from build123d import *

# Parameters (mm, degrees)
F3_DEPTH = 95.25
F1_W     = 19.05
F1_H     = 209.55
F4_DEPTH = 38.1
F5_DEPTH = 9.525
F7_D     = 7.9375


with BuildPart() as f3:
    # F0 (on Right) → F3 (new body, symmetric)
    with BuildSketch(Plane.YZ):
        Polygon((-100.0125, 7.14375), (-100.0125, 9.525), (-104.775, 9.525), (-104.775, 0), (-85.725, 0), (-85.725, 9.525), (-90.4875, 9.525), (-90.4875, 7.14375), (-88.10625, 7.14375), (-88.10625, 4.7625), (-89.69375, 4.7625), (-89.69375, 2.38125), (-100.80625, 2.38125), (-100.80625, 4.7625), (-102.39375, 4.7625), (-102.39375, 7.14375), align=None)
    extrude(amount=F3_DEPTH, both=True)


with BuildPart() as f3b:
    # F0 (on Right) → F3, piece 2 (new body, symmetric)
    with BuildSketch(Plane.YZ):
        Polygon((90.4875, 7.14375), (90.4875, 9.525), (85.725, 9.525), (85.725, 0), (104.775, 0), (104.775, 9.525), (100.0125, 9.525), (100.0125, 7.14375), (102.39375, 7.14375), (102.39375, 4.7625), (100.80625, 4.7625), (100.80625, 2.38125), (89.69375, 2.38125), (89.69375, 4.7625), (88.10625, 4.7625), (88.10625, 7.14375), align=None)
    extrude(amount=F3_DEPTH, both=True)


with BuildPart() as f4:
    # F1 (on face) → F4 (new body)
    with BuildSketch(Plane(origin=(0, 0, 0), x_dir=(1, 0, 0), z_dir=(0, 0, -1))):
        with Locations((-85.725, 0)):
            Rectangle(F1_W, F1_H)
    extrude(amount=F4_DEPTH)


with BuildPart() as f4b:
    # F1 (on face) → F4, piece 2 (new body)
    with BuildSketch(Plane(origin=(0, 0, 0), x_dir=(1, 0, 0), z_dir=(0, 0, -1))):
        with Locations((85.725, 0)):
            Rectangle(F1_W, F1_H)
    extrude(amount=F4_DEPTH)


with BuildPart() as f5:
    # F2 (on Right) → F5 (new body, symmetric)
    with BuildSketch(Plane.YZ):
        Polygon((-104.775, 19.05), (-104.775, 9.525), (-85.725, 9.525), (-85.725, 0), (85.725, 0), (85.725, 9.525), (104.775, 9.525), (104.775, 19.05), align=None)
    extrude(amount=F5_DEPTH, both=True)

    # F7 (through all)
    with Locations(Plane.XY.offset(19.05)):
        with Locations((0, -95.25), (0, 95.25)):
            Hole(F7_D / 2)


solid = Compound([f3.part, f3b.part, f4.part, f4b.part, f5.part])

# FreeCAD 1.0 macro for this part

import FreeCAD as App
import Part
import Sketcher
from FreeCAD import Vector
Q = App.Units.Quantity

doc = App.newDocument("Part")
params = doc.addObject("Spreadsheet::Sheet", "Params")
for row, (alias, value) in enumerate([
    ("sketch1_width", "0.75 in"),
    ("sketch1_width2", "0.1875 in"),
    ("sketch1_width3", "0.09375 in"),
    ("sketch1_width4", "0.0625 in"),
    ("sketch1_height", "0.375 in"),
    ("pad1_length", "7.5 in"),
    ("sketch2_width", "0.75 in"),
    ("sketch2_width2", "0.1875 in"),
    ("sketch2_width3", "0.09375 in"),
    ("sketch2_width4", "0.0625 in"),
    ("sketch2_height", "0.375 in"),
    ("pad2_length", "7.5 in"),
    ("sketch3_width", "0.75 in"),
    ("sketch3_height", "8.25 in"),
    ("pad3_length", "1.5 in"),
    ("sketch4_width", "0.75 in"),
    ("sketch4_height", "8.25 in"),
    ("pad4_length", "1.5 in"),
    ("sketch5_width", "0.75 in"),
    ("sketch5_width2", "6.75 in"),
    ("sketch5_height", "0.375 in"),
    ("pad5_length", "0.75 in"),
    ("sketch6_diameter", "0.3125 in"),
    ("hole_diameter", "0.3125 in"),
], start=1):
    params.set(f"A{row}", alias)
    params.set(f"B{row}", "=" + value)
    params.setAlias(f"B{row}", alias)

body = doc.addObject("PartDesign::Body", "Body")

sketch1 = doc.addObject("Sketcher::SketchObject", "Sketch")
body.addObject(sketch1)
sketch1.AttachmentSupport = (doc.YZ_Plane, [""])
sketch1.MapMode = "FlatFace"
sketch1.addGeometry([
    Part.LineSegment(Vector(-100, 7.1, 0), Vector(-100, 9.5, 0)),
    Part.LineSegment(Vector(-100, 9.5, 0), Vector(-104.8, 9.5, 0)),
    Part.LineSegment(Vector(-104.8, 9.5, 0), Vector(-104.8, 0, 0)),
    Part.LineSegment(Vector(-104.8, 0, 0), Vector(-85.7, 0, 0)),
    Part.LineSegment(Vector(-85.7, 0, 0), Vector(-85.7, 9.5, 0)),
    Part.LineSegment(Vector(-85.7, 9.5, 0), Vector(-90.5, 9.5, 0)),
    Part.LineSegment(Vector(-90.5, 9.5, 0), Vector(-90.5, 7.1, 0)),
    Part.LineSegment(Vector(-90.5, 7.1, 0), Vector(-88.1, 7.1, 0)),
    Part.LineSegment(Vector(-88.1, 7.1, 0), Vector(-88.1, 4.8, 0)),
    Part.LineSegment(Vector(-88.1, 4.8, 0), Vector(-89.7, 4.8, 0)),
    Part.LineSegment(Vector(-89.7, 4.8, 0), Vector(-89.7, 2.4, 0)),
    Part.LineSegment(Vector(-89.7, 2.4, 0), Vector(-100.8, 2.4, 0)),
    Part.LineSegment(Vector(-100.8, 2.4, 0), Vector(-100.8, 4.8, 0)),
    Part.LineSegment(Vector(-100.8, 4.8, 0), Vector(-102.4, 4.8, 0)),
    Part.LineSegment(Vector(-102.4, 4.8, 0), Vector(-102.4, 7.1, 0)),
    Part.LineSegment(Vector(-102.4, 7.1, 0), Vector(-100, 7.1, 0)),
], False)
sketch1.addConstraint([
    Sketcher.Constraint("Coincident", 0, 2, 1, 1),
    Sketcher.Constraint("Coincident", 1, 2, 2, 1),
    Sketcher.Constraint("Coincident", 2, 2, 3, 1),
    Sketcher.Constraint("Coincident", 3, 2, 4, 1),
    Sketcher.Constraint("Coincident", 4, 2, 5, 1),
    Sketcher.Constraint("Coincident", 5, 2, 6, 1),
    Sketcher.Constraint("Coincident", 6, 2, 7, 1),
    Sketcher.Constraint("Coincident", 7, 2, 8, 1),
    Sketcher.Constraint("Coincident", 8, 2, 9, 1),
    Sketcher.Constraint("Coincident", 9, 2, 10, 1),
    Sketcher.Constraint("Coincident", 10, 2, 11, 1),
    Sketcher.Constraint("Coincident", 11, 2, 12, 1),
    Sketcher.Constraint("Coincident", 12, 2, 13, 1),
    Sketcher.Constraint("Coincident", 13, 2, 14, 1),
    Sketcher.Constraint("Coincident", 14, 2, 15, 1),
    Sketcher.Constraint("Coincident", 15, 2, 0, 1),
    Sketcher.Constraint("Vertical", 0),
    Sketcher.Constraint("Horizontal", 1),
    Sketcher.Constraint("Vertical", 2),
    Sketcher.Constraint("Horizontal", 3),
    Sketcher.Constraint("Vertical", 4),
    Sketcher.Constraint("Horizontal", 5),
    Sketcher.Constraint("Vertical", 6),
    Sketcher.Constraint("Horizontal", 7),
    Sketcher.Constraint("Vertical", 8),
    Sketcher.Constraint("Horizontal", 9),
    Sketcher.Constraint("Vertical", 10),
    Sketcher.Constraint("Horizontal", 11),
    Sketcher.Constraint("Vertical", 12),
    Sketcher.Constraint("Horizontal", 13),
    Sketcher.Constraint("Vertical", 14),
    Sketcher.Constraint("Horizontal", 15),
    Sketcher.Constraint("PointOnObject", 2, 2, -1),
    Sketcher.Constraint("Horizontal", 1, 2, 4, 2),
    Sketcher.Constraint("Horizontal", 9, 2, 12, 2),
    Sketcher.Constraint("Horizontal", 7, 2, 14, 2),
    Sketcher.Constraint("Equal", 1, 5),
    Sketcher.Constraint("Equal", 9, 13),
    Sketcher.Constraint("Equal", 7, 15),
    Sketcher.Constraint("Equal", 15, 0),
    Sketcher.Constraint("Equal", 6, 8),
    Sketcher.Constraint("Equal", 8, 10),
    Sketcher.Constraint("DistanceX", 3, 1, 3, 2, Q("0.75 in")),
    Sketcher.Constraint("DistanceX", 1, 2, 1, 1, Q("0.1875 in")),
    Sketcher.Constraint("DistanceX", 7, 1, 7, 2, Q("0.09375 in")),
    Sketcher.Constraint("DistanceX", 9, 2, 9, 1, Q("0.0625 in")),
    Sketcher.Constraint("DistanceY", 2, 2, 2, 1, Q("0.375 in")),
    Sketcher.Constraint("DistanceX", 0, 2, -1, 1, Q("3.9375 in")),
])
sketch1.setExpression("Constraints[42]", "Params.sketch1_width")
sketch1.setExpression("Constraints[43]", "Params.sketch1_width2")
sketch1.setExpression("Constraints[44]", "Params.sketch1_width3")
sketch1.setExpression("Constraints[45]", "Params.sketch1_width4")
sketch1.setExpression("Constraints[46]", "Params.sketch1_height")
pad1 = doc.addObject("PartDesign::Pad", "Pad")
body.addObject(pad1)
pad1.Profile = sketch1
pad1.setExpression("Length", "Params.pad1_length")
pad1.Midplane = True
body2 = doc.addObject("PartDesign::Body", "Body001")

sketch2 = doc.addObject("Sketcher::SketchObject", "Sketch001")
body2.addObject(sketch2)
sketch2.AttachmentSupport = (doc.getObject("YZ_Plane001"), [""])
sketch2.MapMode = "FlatFace"
sketch2.addGeometry([
    Part.LineSegment(Vector(90.5, 7.1, 0), Vector(90.5, 9.5, 0)),
    Part.LineSegment(Vector(90.5, 9.5, 0), Vector(85.7, 9.5, 0)),
    Part.LineSegment(Vector(85.7, 9.5, 0), Vector(85.7, 0, 0)),
    Part.LineSegment(Vector(85.7, 0, 0), Vector(104.8, 0, 0)),
    Part.LineSegment(Vector(104.8, 0, 0), Vector(104.8, 9.5, 0)),
    Part.LineSegment(Vector(104.8, 9.5, 0), Vector(100, 9.5, 0)),
    Part.LineSegment(Vector(100, 9.5, 0), Vector(100, 7.1, 0)),
    Part.LineSegment(Vector(100, 7.1, 0), Vector(102.4, 7.1, 0)),
    Part.LineSegment(Vector(102.4, 7.1, 0), Vector(102.4, 4.8, 0)),
    Part.LineSegment(Vector(102.4, 4.8, 0), Vector(100.8, 4.8, 0)),
    Part.LineSegment(Vector(100.8, 4.8, 0), Vector(100.8, 2.4, 0)),
    Part.LineSegment(Vector(100.8, 2.4, 0), Vector(89.7, 2.4, 0)),
    Part.LineSegment(Vector(89.7, 2.4, 0), Vector(89.7, 4.8, 0)),
    Part.LineSegment(Vector(89.7, 4.8, 0), Vector(88.1, 4.8, 0)),
    Part.LineSegment(Vector(88.1, 4.8, 0), Vector(88.1, 7.1, 0)),
    Part.LineSegment(Vector(88.1, 7.1, 0), Vector(90.5, 7.1, 0)),
], False)
sketch2.addConstraint([
    Sketcher.Constraint("Coincident", 0, 2, 1, 1),
    Sketcher.Constraint("Coincident", 1, 2, 2, 1),
    Sketcher.Constraint("Coincident", 2, 2, 3, 1),
    Sketcher.Constraint("Coincident", 3, 2, 4, 1),
    Sketcher.Constraint("Coincident", 4, 2, 5, 1),
    Sketcher.Constraint("Coincident", 5, 2, 6, 1),
    Sketcher.Constraint("Coincident", 6, 2, 7, 1),
    Sketcher.Constraint("Coincident", 7, 2, 8, 1),
    Sketcher.Constraint("Coincident", 8, 2, 9, 1),
    Sketcher.Constraint("Coincident", 9, 2, 10, 1),
    Sketcher.Constraint("Coincident", 10, 2, 11, 1),
    Sketcher.Constraint("Coincident", 11, 2, 12, 1),
    Sketcher.Constraint("Coincident", 12, 2, 13, 1),
    Sketcher.Constraint("Coincident", 13, 2, 14, 1),
    Sketcher.Constraint("Coincident", 14, 2, 15, 1),
    Sketcher.Constraint("Coincident", 15, 2, 0, 1),
    Sketcher.Constraint("Vertical", 0),
    Sketcher.Constraint("Horizontal", 1),
    Sketcher.Constraint("Vertical", 2),
    Sketcher.Constraint("Horizontal", 3),
    Sketcher.Constraint("Vertical", 4),
    Sketcher.Constraint("Horizontal", 5),
    Sketcher.Constraint("Vertical", 6),
    Sketcher.Constraint("Horizontal", 7),
    Sketcher.Constraint("Vertical", 8),
    Sketcher.Constraint("Horizontal", 9),
    Sketcher.Constraint("Vertical", 10),
    Sketcher.Constraint("Horizontal", 11),
    Sketcher.Constraint("Vertical", 12),
    Sketcher.Constraint("Horizontal", 13),
    Sketcher.Constraint("Vertical", 14),
    Sketcher.Constraint("Horizontal", 15),
    Sketcher.Constraint("PointOnObject", 2, 2, -1),
    Sketcher.Constraint("Horizontal", 1, 2, 4, 2),
    Sketcher.Constraint("Horizontal", 9, 2, 12, 2),
    Sketcher.Constraint("Horizontal", 7, 2, 14, 2),
    Sketcher.Constraint("Equal", 1, 5),
    Sketcher.Constraint("Equal", 9, 13),
    Sketcher.Constraint("Equal", 7, 15),
    Sketcher.Constraint("Equal", 15, 0),
    Sketcher.Constraint("Equal", 6, 8),
    Sketcher.Constraint("Equal", 8, 10),
    Sketcher.Constraint("DistanceX", 3, 1, 3, 2, Q("0.75 in")),
    Sketcher.Constraint("DistanceX", 1, 2, 1, 1, Q("0.1875 in")),
    Sketcher.Constraint("DistanceX", 7, 1, 7, 2, Q("0.09375 in")),
    Sketcher.Constraint("DistanceX", 9, 2, 9, 1, Q("0.0625 in")),
    Sketcher.Constraint("DistanceY", 2, 2, 2, 1, Q("0.375 in")),
    Sketcher.Constraint("DistanceX", -1, 1, 0, 2, Q("3.5625 in")),
])
sketch2.setExpression("Constraints[42]", "Params.sketch2_width")
sketch2.setExpression("Constraints[43]", "Params.sketch2_width2")
sketch2.setExpression("Constraints[44]", "Params.sketch2_width3")
sketch2.setExpression("Constraints[45]", "Params.sketch2_width4")
sketch2.setExpression("Constraints[46]", "Params.sketch2_height")
pad2 = doc.addObject("PartDesign::Pad", "Pad001")
body2.addObject(pad2)
pad2.Profile = sketch2
pad2.setExpression("Length", "Params.pad2_length")
pad2.Midplane = True
body3 = doc.addObject("PartDesign::Body", "Body002")

sketch3 = doc.addObject("Sketcher::SketchObject", "Sketch002")
body3.addObject(sketch3)
sketch3.AttachmentSupport = (doc.getObject("XY_Plane002"), [""])
sketch3.MapMode = "FlatFace"
sketch3.addGeometry([
    Part.LineSegment(Vector(-95, -105, 0), Vector(-95, 105, 0)),
    Part.LineSegment(Vector(-95, 105, 0), Vector(-76, 105, 0)),
    Part.LineSegment(Vector(-76, 105, 0), Vector(-76, -105, 0)),
    Part.LineSegment(Vector(-76, -105, 0), Vector(-95, -105, 0)),
], False)
sketch3.addConstraint([
    Sketcher.Constraint("Coincident", 0, 2, 1, 1),
    Sketcher.Constraint("Coincident", 1, 2, 2, 1),
    Sketcher.Constraint("Coincident", 2, 2, 3, 1),
    Sketcher.Constraint("Coincident", 3, 2, 0, 1),
    Sketcher.Constraint("Vertical", 0),
    Sketcher.Constraint("Horizontal", 1),
    Sketcher.Constraint("Vertical", 2),
    Sketcher.Constraint("Horizontal", 3),
    Sketcher.Constraint("DistanceX", 1, 2, -1, 1, Q("3 in")),
    Sketcher.Constraint("DistanceX", 1, 1, 1, 2, Q("0.75 in")),
    Sketcher.Constraint("DistanceY", 0, 1, 0, 2, Q("8.25 in")),
    Sketcher.Constraint("DistanceY", -1, 1, 0, 2, Q("4.125 in")),
])
sketch3.setExpression("Constraints[9]", "Params.sketch3_width")
sketch3.setExpression("Constraints[10]", "Params.sketch3_height")
pad3 = doc.addObject("PartDesign::Pad", "Pad002")
body3.addObject(pad3)
pad3.Profile = sketch3
pad3.setExpression("Length", "Params.pad3_length")
pad3.Reversed = True
body4 = doc.addObject("PartDesign::Body", "Body003")

sketch4 = doc.addObject("Sketcher::SketchObject", "Sketch003")
body4.addObject(sketch4)
sketch4.AttachmentSupport = (doc.getObject("XY_Plane003"), [""])
sketch4.MapMode = "FlatFace"
sketch4.addGeometry([
    Part.LineSegment(Vector(76, -105, 0), Vector(76, 105, 0)),
    Part.LineSegment(Vector(76, 105, 0), Vector(95, 105, 0)),
    Part.LineSegment(Vector(95, 105, 0), Vector(95, -105, 0)),
    Part.LineSegment(Vector(95, -105, 0), Vector(76, -105, 0)),
], False)
sketch4.addConstraint([
    Sketcher.Constraint("Coincident", 0, 2, 1, 1),
    Sketcher.Constraint("Coincident", 1, 2, 2, 1),
    Sketcher.Constraint("Coincident", 2, 2, 3, 1),
    Sketcher.Constraint("Coincident", 3, 2, 0, 1),
    Sketcher.Constraint("Vertical", 0),
    Sketcher.Constraint("Horizontal", 1),
    Sketcher.Constraint("Vertical", 2),
    Sketcher.Constraint("Horizontal", 3),
    Sketcher.Constraint("DistanceX", -1, 1, 0, 2, Q("3 in")),
    Sketcher.Constraint("DistanceX", 1, 1, 1, 2, Q("0.75 in")),
    Sketcher.Constraint("DistanceY", 0, 1, 0, 2, Q("8.25 in")),
    Sketcher.Constraint("DistanceY", -1, 1, 0, 2, Q("4.125 in")),
])
sketch4.setExpression("Constraints[9]", "Params.sketch4_width")
sketch4.setExpression("Constraints[10]", "Params.sketch4_height")
pad4 = doc.addObject("PartDesign::Pad", "Pad003")
body4.addObject(pad4)
pad4.Profile = sketch4
pad4.setExpression("Length", "Params.pad4_length")
pad4.Reversed = True
body5 = doc.addObject("PartDesign::Body", "Body004")

sketch5 = doc.addObject("Sketcher::SketchObject", "Sketch004")
body5.addObject(sketch5)
sketch5.AttachmentSupport = (doc.getObject("YZ_Plane004"), [""])
sketch5.MapMode = "FlatFace"
sketch5.addGeometry([
    Part.LineSegment(Vector(-105, 19, 0), Vector(-105, 10, 0)),
    Part.LineSegment(Vector(-105, 10, 0), Vector(-86, 10, 0)),
    Part.LineSegment(Vector(-86, 10, 0), Vector(-86, 0, 0)),
    Part.LineSegment(Vector(-86, 0, 0), Vector(86, 0, 0)),
    Part.LineSegment(Vector(86, 0, 0), Vector(86, 10, 0)),
    Part.LineSegment(Vector(86, 10, 0), Vector(105, 10, 0)),
    Part.LineSegment(Vector(105, 10, 0), Vector(105, 19, 0)),
    Part.LineSegment(Vector(105, 19, 0), Vector(-105, 19, 0)),
], False)
sketch5.addConstraint([
    Sketcher.Constraint("Coincident", 0, 2, 1, 1),
    Sketcher.Constraint("Coincident", 1, 2, 2, 1),
    Sketcher.Constraint("Coincident", 2, 2, 3, 1),
    Sketcher.Constraint("Coincident", 3, 2, 4, 1),
    Sketcher.Constraint("Coincident", 4, 2, 5, 1),
    Sketcher.Constraint("Coincident", 5, 2, 6, 1),
    Sketcher.Constraint("Coincident", 6, 2, 7, 1),
    Sketcher.Constraint("Coincident", 7, 2, 0, 1),
    Sketcher.Constraint("Vertical", 0),
    Sketcher.Constraint("Horizontal", 1),
    Sketcher.Constraint("Vertical", 2),
    Sketcher.Constraint("Horizontal", 3),
    Sketcher.Constraint("Vertical", 4),
    Sketcher.Constraint("Horizontal", 5),
    Sketcher.Constraint("Vertical", 6),
    Sketcher.Constraint("Horizontal", 7),
    Sketcher.Constraint("Symmetric", 2, 2, 3, 2, -1, 1),
    Sketcher.Constraint("Symmetric", 0, 2, 5, 2, -2),
    Sketcher.Constraint("Equal", 0, 2),
    Sketcher.Constraint("DistanceX", 1, 1, 1, 2, Q("0.75 in")),
    Sketcher.Constraint("DistanceX", 3, 1, 3, 2, Q("6.75 in")),
    Sketcher.Constraint("DistanceY", 0, 2, 0, 1, Q("0.375 in")),
])
sketch5.setExpression("Constraints[19]", "Params.sketch5_width")
sketch5.setExpression("Constraints[20]", "Params.sketch5_width2")
sketch5.setExpression("Constraints[21]", "Params.sketch5_height")
pad5 = doc.addObject("PartDesign::Pad", "Pad004")
body5.addObject(pad5)
pad5.Profile = sketch5
pad5.setExpression("Length", "Params.pad5_length")
pad5.Midplane = True

sketch6 = doc.addObject("Sketcher::SketchObject", "Sketch005")
body5.addObject(sketch6)
sketch6.AttachmentSupport = (doc.getObject("XY_Plane004"), [""])
sketch6.MapMode = "FlatFace"
sketch6.AttachmentOffset = App.Placement(Vector(0, 0, 0.75 * 25.4), App.Rotation())
sketch6.addGeometry([
    Part.Circle(Vector(0, -95.2, 0), Vector(0, 0, 1), 4),
    Part.Circle(Vector(0, 95.2, 0), Vector(0, 0, 1), 4),
], False)
sketch6.addConstraint([
    Sketcher.Constraint("Equal", 0, 1),
    Sketcher.Constraint("Symmetric", 0, 3, 1, 3, -1, 1),
    Sketcher.Constraint("PointOnObject", 0, 3, -2),
    Sketcher.Constraint("Diameter", 0, Q("0.3125 in")),
    Sketcher.Constraint("DistanceY", 0, 3, 1, 3, Q("7.5 in")),
])
sketch6.setExpression("Constraints[3]", "Params.sketch6_diameter")
doc.recompute()
hole = doc.addObject("PartDesign::Hole", "Hole")
body5.addObject(hole)
hole.Profile = sketch6
hole.ThreadType = "None"
hole.setExpression("Diameter", "Params.hole_diameter")
hole.DepthType = "ThroughAll"

doc.recompute()
